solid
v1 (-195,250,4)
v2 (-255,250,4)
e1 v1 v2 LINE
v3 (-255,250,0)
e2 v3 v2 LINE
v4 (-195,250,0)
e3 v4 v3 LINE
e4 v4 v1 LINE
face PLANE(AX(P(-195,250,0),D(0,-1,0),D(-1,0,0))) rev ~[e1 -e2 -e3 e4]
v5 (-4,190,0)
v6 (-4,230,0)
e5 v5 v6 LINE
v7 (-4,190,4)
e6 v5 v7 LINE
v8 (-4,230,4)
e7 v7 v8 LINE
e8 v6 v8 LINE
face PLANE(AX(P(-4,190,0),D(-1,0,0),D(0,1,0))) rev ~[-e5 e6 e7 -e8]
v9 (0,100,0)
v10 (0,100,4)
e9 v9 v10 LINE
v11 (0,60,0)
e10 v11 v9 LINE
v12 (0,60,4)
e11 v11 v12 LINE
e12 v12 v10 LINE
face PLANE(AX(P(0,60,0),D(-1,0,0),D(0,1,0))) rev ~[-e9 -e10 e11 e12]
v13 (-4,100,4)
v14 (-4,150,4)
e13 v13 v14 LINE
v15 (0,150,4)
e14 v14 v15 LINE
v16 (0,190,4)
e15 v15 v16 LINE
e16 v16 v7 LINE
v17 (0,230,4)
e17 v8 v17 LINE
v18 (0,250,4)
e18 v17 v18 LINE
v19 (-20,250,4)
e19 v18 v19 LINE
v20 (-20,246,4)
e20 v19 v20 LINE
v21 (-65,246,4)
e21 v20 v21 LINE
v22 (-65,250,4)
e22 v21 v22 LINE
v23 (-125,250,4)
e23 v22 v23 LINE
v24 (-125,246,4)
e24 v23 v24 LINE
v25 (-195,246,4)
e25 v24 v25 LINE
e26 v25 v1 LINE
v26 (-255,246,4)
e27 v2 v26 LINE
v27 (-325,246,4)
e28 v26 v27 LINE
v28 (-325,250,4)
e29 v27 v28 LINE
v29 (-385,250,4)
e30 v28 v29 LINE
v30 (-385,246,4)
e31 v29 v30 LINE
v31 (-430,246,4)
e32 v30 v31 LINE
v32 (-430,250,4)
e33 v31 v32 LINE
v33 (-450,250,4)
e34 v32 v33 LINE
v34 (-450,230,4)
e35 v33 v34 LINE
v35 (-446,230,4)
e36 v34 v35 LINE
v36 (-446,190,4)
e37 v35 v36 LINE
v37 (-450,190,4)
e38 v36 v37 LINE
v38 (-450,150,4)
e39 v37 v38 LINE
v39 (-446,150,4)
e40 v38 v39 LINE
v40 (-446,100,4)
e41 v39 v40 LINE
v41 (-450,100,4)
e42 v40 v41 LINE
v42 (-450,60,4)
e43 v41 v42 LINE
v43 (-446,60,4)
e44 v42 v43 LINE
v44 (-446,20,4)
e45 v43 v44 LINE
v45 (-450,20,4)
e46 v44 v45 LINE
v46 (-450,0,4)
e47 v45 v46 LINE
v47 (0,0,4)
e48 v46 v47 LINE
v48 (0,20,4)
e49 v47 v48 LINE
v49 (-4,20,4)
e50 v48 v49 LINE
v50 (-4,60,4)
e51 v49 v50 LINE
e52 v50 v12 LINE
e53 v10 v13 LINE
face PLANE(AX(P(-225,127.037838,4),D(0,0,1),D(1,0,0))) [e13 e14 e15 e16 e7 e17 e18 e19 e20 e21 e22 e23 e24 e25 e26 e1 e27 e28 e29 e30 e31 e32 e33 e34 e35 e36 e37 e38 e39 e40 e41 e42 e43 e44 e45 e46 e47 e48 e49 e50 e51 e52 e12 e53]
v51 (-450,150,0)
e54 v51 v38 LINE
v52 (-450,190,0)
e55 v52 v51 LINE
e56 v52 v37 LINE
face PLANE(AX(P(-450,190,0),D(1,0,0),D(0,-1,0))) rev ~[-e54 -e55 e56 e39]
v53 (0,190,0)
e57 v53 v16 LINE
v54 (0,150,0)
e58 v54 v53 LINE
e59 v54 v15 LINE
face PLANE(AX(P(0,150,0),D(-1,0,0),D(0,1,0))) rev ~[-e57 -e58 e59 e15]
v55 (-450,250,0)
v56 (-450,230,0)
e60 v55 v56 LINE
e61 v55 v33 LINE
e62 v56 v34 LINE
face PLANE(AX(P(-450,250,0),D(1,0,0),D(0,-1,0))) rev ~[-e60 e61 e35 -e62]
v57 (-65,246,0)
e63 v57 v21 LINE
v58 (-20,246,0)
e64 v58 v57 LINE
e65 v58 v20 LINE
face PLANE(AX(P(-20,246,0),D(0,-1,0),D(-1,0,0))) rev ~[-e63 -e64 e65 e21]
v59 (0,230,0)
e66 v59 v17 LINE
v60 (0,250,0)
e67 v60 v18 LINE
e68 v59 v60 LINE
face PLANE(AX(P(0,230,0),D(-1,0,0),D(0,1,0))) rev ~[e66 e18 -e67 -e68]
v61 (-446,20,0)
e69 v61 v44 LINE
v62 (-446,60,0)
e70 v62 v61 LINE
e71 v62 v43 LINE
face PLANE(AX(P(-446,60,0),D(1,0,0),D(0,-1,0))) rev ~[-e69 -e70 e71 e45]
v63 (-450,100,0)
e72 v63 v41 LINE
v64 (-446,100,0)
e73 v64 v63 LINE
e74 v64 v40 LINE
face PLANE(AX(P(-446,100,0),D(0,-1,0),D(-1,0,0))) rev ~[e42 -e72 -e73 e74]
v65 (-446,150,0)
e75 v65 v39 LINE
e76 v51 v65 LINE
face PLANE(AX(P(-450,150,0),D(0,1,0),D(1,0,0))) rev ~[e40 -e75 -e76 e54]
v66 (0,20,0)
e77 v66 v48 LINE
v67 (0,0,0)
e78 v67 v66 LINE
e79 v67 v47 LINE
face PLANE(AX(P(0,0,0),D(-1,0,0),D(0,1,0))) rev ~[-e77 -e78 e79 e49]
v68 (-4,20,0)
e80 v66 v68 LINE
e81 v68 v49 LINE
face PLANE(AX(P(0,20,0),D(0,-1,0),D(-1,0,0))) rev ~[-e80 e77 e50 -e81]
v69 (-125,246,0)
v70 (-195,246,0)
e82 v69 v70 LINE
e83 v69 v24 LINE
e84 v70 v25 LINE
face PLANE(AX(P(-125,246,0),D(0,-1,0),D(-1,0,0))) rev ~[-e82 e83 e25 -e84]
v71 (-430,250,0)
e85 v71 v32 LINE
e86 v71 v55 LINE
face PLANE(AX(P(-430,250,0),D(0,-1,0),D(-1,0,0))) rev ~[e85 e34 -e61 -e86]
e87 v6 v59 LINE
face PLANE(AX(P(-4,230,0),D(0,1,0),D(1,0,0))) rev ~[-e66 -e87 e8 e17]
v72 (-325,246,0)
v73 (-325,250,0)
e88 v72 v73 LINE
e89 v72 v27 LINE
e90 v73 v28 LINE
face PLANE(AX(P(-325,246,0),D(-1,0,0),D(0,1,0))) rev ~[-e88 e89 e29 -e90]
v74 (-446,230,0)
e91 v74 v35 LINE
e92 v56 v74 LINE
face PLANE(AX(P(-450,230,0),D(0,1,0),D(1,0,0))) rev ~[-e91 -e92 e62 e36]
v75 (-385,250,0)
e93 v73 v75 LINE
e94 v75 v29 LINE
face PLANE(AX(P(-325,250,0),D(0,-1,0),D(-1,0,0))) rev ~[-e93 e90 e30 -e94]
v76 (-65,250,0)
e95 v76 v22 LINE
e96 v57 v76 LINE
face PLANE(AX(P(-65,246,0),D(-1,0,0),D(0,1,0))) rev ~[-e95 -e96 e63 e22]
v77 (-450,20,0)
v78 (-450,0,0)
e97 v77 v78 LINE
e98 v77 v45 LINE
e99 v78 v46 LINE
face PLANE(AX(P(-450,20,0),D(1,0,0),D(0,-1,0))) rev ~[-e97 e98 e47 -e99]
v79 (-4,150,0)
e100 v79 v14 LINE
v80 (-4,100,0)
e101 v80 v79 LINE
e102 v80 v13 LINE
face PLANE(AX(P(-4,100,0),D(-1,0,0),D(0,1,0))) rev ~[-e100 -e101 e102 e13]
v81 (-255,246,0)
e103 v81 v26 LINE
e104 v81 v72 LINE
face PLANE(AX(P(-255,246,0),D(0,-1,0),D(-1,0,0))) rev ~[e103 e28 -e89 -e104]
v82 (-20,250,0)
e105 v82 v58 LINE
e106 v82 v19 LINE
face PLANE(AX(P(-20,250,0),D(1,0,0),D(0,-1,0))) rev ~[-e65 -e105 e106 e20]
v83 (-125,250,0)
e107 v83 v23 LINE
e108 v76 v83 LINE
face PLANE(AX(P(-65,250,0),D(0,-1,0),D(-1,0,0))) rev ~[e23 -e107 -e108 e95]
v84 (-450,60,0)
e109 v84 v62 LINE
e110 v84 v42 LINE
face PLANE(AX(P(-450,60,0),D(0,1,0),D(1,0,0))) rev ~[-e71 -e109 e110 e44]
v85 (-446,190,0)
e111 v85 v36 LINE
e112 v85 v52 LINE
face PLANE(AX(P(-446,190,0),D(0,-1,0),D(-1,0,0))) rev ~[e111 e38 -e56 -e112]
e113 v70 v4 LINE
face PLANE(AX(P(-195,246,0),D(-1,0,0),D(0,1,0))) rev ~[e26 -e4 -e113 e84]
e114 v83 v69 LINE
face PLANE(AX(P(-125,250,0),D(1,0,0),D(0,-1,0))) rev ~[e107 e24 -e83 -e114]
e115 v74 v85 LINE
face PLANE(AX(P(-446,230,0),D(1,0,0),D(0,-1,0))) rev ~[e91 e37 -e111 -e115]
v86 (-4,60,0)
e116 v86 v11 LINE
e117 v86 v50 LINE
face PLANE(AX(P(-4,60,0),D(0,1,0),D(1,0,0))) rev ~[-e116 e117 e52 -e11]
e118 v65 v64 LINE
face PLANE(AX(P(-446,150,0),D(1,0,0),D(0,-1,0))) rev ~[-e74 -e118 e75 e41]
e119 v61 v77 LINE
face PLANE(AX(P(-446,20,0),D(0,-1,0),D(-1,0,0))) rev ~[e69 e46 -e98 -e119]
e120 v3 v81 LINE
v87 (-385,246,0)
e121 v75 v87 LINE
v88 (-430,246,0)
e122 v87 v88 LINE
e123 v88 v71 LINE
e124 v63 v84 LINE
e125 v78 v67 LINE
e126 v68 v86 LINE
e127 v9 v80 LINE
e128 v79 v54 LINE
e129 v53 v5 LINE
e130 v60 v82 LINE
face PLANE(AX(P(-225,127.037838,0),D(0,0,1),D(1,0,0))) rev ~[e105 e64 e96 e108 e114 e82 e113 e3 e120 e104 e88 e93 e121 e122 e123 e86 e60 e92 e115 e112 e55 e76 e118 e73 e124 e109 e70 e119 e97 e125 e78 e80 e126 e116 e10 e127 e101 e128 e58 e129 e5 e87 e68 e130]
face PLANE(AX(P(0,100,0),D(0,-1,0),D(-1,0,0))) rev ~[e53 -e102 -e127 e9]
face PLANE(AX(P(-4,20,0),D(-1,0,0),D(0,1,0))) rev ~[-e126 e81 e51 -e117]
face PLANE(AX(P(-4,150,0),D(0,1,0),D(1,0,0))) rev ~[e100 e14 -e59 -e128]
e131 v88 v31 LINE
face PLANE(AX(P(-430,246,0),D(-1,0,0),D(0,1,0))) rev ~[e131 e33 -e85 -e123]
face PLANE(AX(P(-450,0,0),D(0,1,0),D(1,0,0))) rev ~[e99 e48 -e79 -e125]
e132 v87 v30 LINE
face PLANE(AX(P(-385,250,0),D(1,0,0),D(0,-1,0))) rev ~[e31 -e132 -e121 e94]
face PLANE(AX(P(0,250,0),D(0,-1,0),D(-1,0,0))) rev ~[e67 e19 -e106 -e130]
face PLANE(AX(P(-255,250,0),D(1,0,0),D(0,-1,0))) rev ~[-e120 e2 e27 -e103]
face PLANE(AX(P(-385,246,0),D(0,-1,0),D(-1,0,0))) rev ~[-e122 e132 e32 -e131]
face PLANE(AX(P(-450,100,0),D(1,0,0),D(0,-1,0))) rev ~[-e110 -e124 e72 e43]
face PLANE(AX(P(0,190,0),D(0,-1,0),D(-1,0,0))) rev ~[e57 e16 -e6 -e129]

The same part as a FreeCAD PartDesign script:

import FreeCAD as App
import Part
import Sketcher

V = App.Vector
Q = App.Units.Quantity

doc = App.newDocument("Part")
body = doc.addObject("PartDesign::Body", "Body")

# Sketch on XY plane
sketch1 = body.newObject("Sketcher::SketchObject", "Sketch")
sketch1.AttachmentSupport = (doc.getObject("XY_Plane"), [""])
sketch1.MapMode = "FlatFace"
sketch1.addGeometry([
    Part.LineSegment(V(-450, 0, 0), V(0, 0, 0)),  # 0
    Part.LineSegment(V(0, 0, 0), V(0, 20, 0)),  # 1
    Part.LineSegment(V(0, 20, 0), V(-4, 20, 0)),  # 2
    Part.LineSegment(V(-4, 20, 0), V(-4, 60, 0)),  # 3
    Part.LineSegment(V(-4, 60, 0), V(0, 60, 0)),  # 4
    Part.LineSegment(V(0, 60, 0), V(0, 100, 0)),  # 5
    Part.LineSegment(V(0, 100, 0), V(-4, 100, 0)),  # 6
    Part.LineSegment(V(-4, 100, 0), V(-4, 150, 0)),  # 7
    Part.LineSegment(V(-4, 150, 0), V(0, 150, 0)),  # 8
    Part.LineSegment(V(0, 150, 0), V(0, 190, 0)),  # 9
    Part.LineSegment(V(0, 190, 0), V(-4, 190, 0)),  # 10
    Part.LineSegment(V(-4, 190, 0), V(-4, 230, 0)),  # 11
    Part.LineSegment(V(-4, 230, 0), V(0, 230, 0)),  # 12
    Part.LineSegment(V(0, 230, 0), V(0, 250, 0)),  # 13
    Part.LineSegment(V(0, 250, 0), V(-20, 250, 0)),  # 14
    Part.LineSegment(V(-20, 250, 0), V(-20, 246, 0)),  # 15
    Part.LineSegment(V(-20, 246, 0), V(-65, 246, 0)),  # 16
    Part.LineSegment(V(-65, 246, 0), V(-65, 250, 0)),  # 17
    Part.LineSegment(V(-65, 250, 0), V(-125, 250, 0)),  # 18
    Part.LineSegment(V(-125, 250, 0), V(-125, 246, 0)),  # 19
    Part.LineSegment(V(-125, 246, 0), V(-195, 246, 0)),  # 20
    Part.LineSegment(V(-195, 246, 0), V(-195, 250, 0)),  # 21
    Part.LineSegment(V(-195, 250, 0), V(-255, 250, 0)),  # 22
    Part.LineSegment(V(-255, 250, 0), V(-255, 246, 0)),  # 23
    Part.LineSegment(V(-255, 246, 0), V(-325, 246, 0)),  # 24
    Part.LineSegment(V(-325, 246, 0), V(-325, 250, 0)),  # 25
    Part.LineSegment(V(-325, 250, 0), V(-385, 250, 0)),  # 26
    Part.LineSegment(V(-385, 250, 0), V(-385, 246, 0)),  # 27
    Part.LineSegment(V(-385, 246, 0), V(-430, 246, 0)),  # 28
    Part.LineSegment(V(-430, 246, 0), V(-430, 250, 0)),  # 29
    Part.LineSegment(V(-430, 250, 0), V(-450, 250, 0)),  # 30
    Part.LineSegment(V(-450, 250, 0), V(-450, 230, 0)),  # 31
    Part.LineSegment(V(-450, 230, 0), V(-446, 230, 0)),  # 32
    Part.LineSegment(V(-446, 230, 0), V(-446, 190, 0)),  # 33
    Part.LineSegment(V(-446, 190, 0), V(-450, 190, 0)),  # 34
    Part.LineSegment(V(-450, 190, 0), V(-450, 150, 0)),  # 35
    Part.LineSegment(V(-450, 150, 0), V(-446, 150, 0)),  # 36
    Part.LineSegment(V(-446, 150, 0), V(-446, 100, 0)),  # 37
    Part.LineSegment(V(-446, 100, 0), V(-450, 100, 0)),  # 38
    Part.LineSegment(V(-450, 100, 0), V(-450, 60, 0)),  # 39
    Part.LineSegment(V(-450, 60, 0), V(-446, 60, 0)),  # 40
    Part.LineSegment(V(-446, 60, 0), V(-446, 20, 0)),  # 41
    Part.LineSegment(V(-446, 20, 0), V(-450, 20, 0)),  # 42
    Part.LineSegment(V(-450, 20, 0), V(-450, 0, 0)),  # 43
], False)
sketch1.addConstraint([
    Sketcher.Constraint("Coincident", 0, 2, 1, 1),
    Sketcher.Constraint("Coincident", 1, 2, 2, 1),
    Sketcher.Constraint("Coincident", 2, 2, 3, 1),
    Sketcher.Constraint("Coincident", 3, 2, 4, 1),
    Sketcher.Constraint("Coincident", 4, 2, 5, 1),
    Sketcher.Constraint("Coincident", 5, 2, 6, 1),
    Sketcher.Constraint("Coincident", 6, 2, 7, 1),
    Sketcher.Constraint("Coincident", 7, 2, 8, 1),
    Sketcher.Constraint("Coincident", 8, 2, 9, 1),
    Sketcher.Constraint("Coincident", 9, 2, 10, 1),
    Sketcher.Constraint("Coincident", 10, 2, 11, 1),
    Sketcher.Constraint("Coincident", 11, 2, 12, 1),
    Sketcher.Constraint("Coincident", 12, 2, 13, 1),
    Sketcher.Constraint("Coincident", 13, 2, 14, 1),
    Sketcher.Constraint("Coincident", 14, 2, 15, 1),
    Sketcher.Constraint("Coincident", 15, 2, 16, 1),
    Sketcher.Constraint("Coincident", 16, 2, 17, 1),
    Sketcher.Constraint("Coincident", 17, 2, 18, 1),
    Sketcher.Constraint("Coincident", 18, 2, 19, 1),
    Sketcher.Constraint("Coincident", 19, 2, 20, 1),
    Sketcher.Constraint("Coincident", 20, 2, 21, 1),
    Sketcher.Constraint("Coincident", 21, 2, 22, 1),
    Sketcher.Constraint("Coincident", 22, 2, 23, 1),
    Sketcher.Constraint("Coincident", 23, 2, 24, 1),
    Sketcher.Constraint("Coincident", 24, 2, 25, 1),
    Sketcher.Constraint("Coincident", 25, 2, 26, 1),
    Sketcher.Constraint("Coincident", 26, 2, 27, 1),
    Sketcher.Constraint("Coincident", 27, 2, 28, 1),
    Sketcher.Constraint("Coincident", 28, 2, 29, 1),
    Sketcher.Constraint("Coincident", 29, 2, 30, 1),
    Sketcher.Constraint("Coincident", 30, 2, 31, 1),
    Sketcher.Constraint("Coincident", 31, 2, 32, 1),
    Sketcher.Constraint("Coincident", 32, 2, 33, 1),
    Sketcher.Constraint("Coincident", 33, 2, 34, 1),
    Sketcher.Constraint("Coincident", 34, 2, 35, 1),
    Sketcher.Constraint("Coincident", 35, 2, 36, 1),
    Sketcher.Constraint("Coincident", 36, 2, 37, 1),
    Sketcher.Constraint("Coincident", 37, 2, 38, 1),
    Sketcher.Constraint("Coincident", 38, 2, 39, 1),
    Sketcher.Constraint("Coincident", 39, 2, 40, 1),
    Sketcher.Constraint("Coincident", 40, 2, 41, 1),
    Sketcher.Constraint("Coincident", 41, 2, 42, 1),
    Sketcher.Constraint("Coincident", 42, 2, 43, 1),
    Sketcher.Constraint("Coincident", 43, 2, 0, 1),
    Sketcher.Constraint("Horizontal", 0),
    Sketcher.Constraint("Vertical", 1),
    Sketcher.Constraint("Horizontal", 2),
    Sketcher.Constraint("Vertical", 3),
    Sketcher.Constraint("Horizontal", 4),
    Sketcher.Constraint("Vertical", 5),
    Sketcher.Constraint("Horizontal", 6),
    Sketcher.Constraint("Vertical", 7),
    Sketcher.Constraint("Horizontal", 8),
    Sketcher.Constraint("Vertical", 9),
    Sketcher.Constraint("Horizontal", 10),
    Sketcher.Constraint("Vertical", 11),
    Sketcher.Constraint("Horizontal", 12),
    Sketcher.Constraint("Vertical", 13),
    Sketcher.Constraint("Horizontal", 14),
    Sketcher.Constraint("Vertical", 15),
    Sketcher.Constraint("Horizontal", 16),
    Sketcher.Constraint("Vertical", 17),
    Sketcher.Constraint("Horizontal", 18),
    Sketcher.Constraint("Vertical", 19),
    Sketcher.Constraint("Horizontal", 20),
    Sketcher.Constraint("Vertical", 21),
    Sketcher.Constraint("Horizontal", 22),
    Sketcher.Constraint("Vertical", 23),
    Sketcher.Constraint("Horizontal", 24),
    Sketcher.Constraint("Vertical", 25),
    Sketcher.Constraint("Horizontal", 26),
    Sketcher.Constraint("Vertical", 27),
    Sketcher.Constraint("Horizontal", 28),
    Sketcher.Constraint("Vertical", 29),
    Sketcher.Constraint("Horizontal", 30),
    Sketcher.Constraint("Vertical", 31),
    Sketcher.Constraint("Horizontal", 32),
    Sketcher.Constraint("Vertical", 33),
    Sketcher.Constraint("Horizontal", 34),
    Sketcher.Constraint("Vertical", 35),
    Sketcher.Constraint("Horizontal", 36),
    Sketcher.Constraint("Vertical", 37),
    Sketcher.Constraint("Horizontal", 38),
    Sketcher.Constraint("Vertical", 39),
    Sketcher.Constraint("Horizontal", 40),
    Sketcher.Constraint("Vertical", 41),
    Sketcher.Constraint("Horizontal", 42),
    Sketcher.Constraint("Vertical", 43),
    Sketcher.Constraint("Coincident", 0, 2, -1, 1),
    Sketcher.Constraint("PointOnObject", 4, 2, -2),
    Sketcher.Constraint("PointOnObject", 8, 2, -2),
    Sketcher.Constraint("PointOnObject", 12, 2, -2),
    Sketcher.Constraint("Horizontal", 14, 2, 17, 2),
    Sketcher.Constraint("Horizontal", 16, 2, 19, 2),
    Sketcher.Constraint("Horizontal", 18, 2, 21, 2),
    Sketcher.Constraint("Horizontal", 20, 2, 23, 2),
    Sketcher.Constraint("Horizontal", 22, 2, 25, 2),
    Sketcher.Constraint("Horizontal", 24, 2, 27, 2),
    Sketcher.Constraint("Horizontal", 26, 2, 29, 2),
    Sketcher.Constraint("Horizontal", 12, 2, 31, 2),
    Sketcher.Constraint("Horizontal", 10, 2, 33, 2),
    Sketcher.Constraint("Horizontal", 8, 2, 35, 2),
    Sketcher.Constraint("Horizontal", 6, 2, 37, 2),
    Sketcher.Constraint("Horizontal", 4, 2, 39, 2),
    Sketcher.Constraint("Horizontal", 2, 2, 41, 2),
    Sketcher.Constraint("Vertical", 3, 2, 6, 2),
    Sketcher.Constraint("Vertical", 7, 2, 10, 2),
    Sketcher.Constraint("Vertical", 31, 2, 34, 2),
    Sketcher.Constraint("Vertical", 33, 2, 36, 2),
    Sketcher.Constraint("Vertical", 35, 2, 38, 2),
    Sketcher.Constraint("Vertical", 37, 2, 40, 2),
    Sketcher.Constraint("Vertical", 39, 2, 42, 2),
    Sketcher.Constraint("Equal", 18, 22),
    Sketcher.Constraint("Equal", 20, 24),
    Sketcher.Constraint("Equal", 22, 26),
    Sketcher.Constraint("Equal", 16, 28),
    Sketcher.Constraint("Equal", 14, 30),
    Sketcher.Constraint("Equal", 12, 32),
    Sketcher.Constraint("Equal", 30, 1),
    Sketcher.Constraint("Equal", 3, 5),
    Sketcher.Constraint("Equal", 5, 9),
    Sketcher.Constraint("Equal", 9, 11),
    Sketcher.Constraint("Equal", 1, 13),
    Sketcher.Constraint("Equal", 42, 15),
    Sketcher.Constraint("DistanceX", 0, 1, 0, 2, Q("450 mm")),
    Sketcher.Constraint("DistanceX", 2, 2, 2, 1, Q("4 mm")),
    Sketcher.Constraint("DistanceX", 14, 2, 14, 1, Q("20 mm")),
    Sketcher.Constraint("DistanceX", 16, 2, 16, 1, Q("45 mm")),
    Sketcher.Constraint("DistanceX", 18, 2, 18, 1, Q("60 mm")),
    Sketcher.Constraint("DistanceY", 3, 1, 3, 2, Q("40 mm")),
    Sketcher.Constraint("DistanceY", 7, 1, 7, 2, Q("50 mm")),
])
pad1 = body.newObject("PartDesign::Pad", "Pad")
pad1.Profile = sketch1
pad1.Length = 4

doc.recompute()
